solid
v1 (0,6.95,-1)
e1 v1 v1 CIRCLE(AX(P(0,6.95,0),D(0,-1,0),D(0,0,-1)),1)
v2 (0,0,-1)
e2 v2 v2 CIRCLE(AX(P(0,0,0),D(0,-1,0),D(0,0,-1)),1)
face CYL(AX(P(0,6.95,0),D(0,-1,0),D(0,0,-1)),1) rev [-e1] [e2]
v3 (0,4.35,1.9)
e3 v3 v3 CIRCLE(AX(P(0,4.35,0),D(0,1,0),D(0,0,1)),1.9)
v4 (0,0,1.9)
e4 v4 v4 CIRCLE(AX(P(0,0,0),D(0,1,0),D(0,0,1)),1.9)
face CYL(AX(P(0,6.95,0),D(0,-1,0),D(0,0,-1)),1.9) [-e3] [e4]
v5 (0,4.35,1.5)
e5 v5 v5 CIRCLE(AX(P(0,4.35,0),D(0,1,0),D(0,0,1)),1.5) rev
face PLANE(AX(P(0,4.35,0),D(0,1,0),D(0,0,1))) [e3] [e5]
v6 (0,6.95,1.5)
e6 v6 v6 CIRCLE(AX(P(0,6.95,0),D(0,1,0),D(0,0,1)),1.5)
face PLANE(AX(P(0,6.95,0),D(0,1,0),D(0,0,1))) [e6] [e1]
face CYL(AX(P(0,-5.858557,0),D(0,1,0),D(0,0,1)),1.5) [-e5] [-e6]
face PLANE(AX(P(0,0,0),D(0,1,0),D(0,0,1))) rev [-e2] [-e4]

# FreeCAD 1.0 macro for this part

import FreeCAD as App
import Part
import Sketcher
from FreeCAD import Vector


def add_polygon(sketch, points):
    """Adds a closed chain of lines whose ends are joined by coincident constraints."""
    first, n = sketch.GeometryCount, len(points)
    for a, b in zip(points, points[1:] + points[:1]):
        sketch.addGeometry(Part.LineSegment(App.Vector(*a, 0), App.Vector(*b, 0)), False)
    for i in range(n):
        sketch.addConstraint(Sketcher.Constraint("Coincident", first + i, 2, first + (i + 1) % n, 1))

doc = App.newDocument("Part")
params = doc.addObject("Spreadsheet::Sheet", "Params")
for row, (alias, value) in enumerate([
    ("sketch1_diameter", "3.8 mm"),
    ("pad1_length", "6.95 mm"),
    ("sketch2_diameter", "3 mm"),
    ("pocket1_length", "2.6 mm"),
    ("sketch3_diameter", "2 mm"),
], start=1):
    params.set(f"A{row}", alias)
    params.set(f"B{row}", "=" + value)
    params.setAlias(f"B{row}", alias)

body = doc.addObject("PartDesign::Body", "Body")

# Sketch on XZ plane
sketch1 = doc.addObject("Sketcher::SketchObject", "Sketch")
body.addObject(sketch1)
sketch1.AttachmentSupport = (doc.XZ_Plane, [""])
sketch1.MapMode = "FlatFace"
sketch1.addGeometry(Part.Circle(Vector(0, 0, 0), Vector(0, 0, 1), 1.9), False)
sketch1.addConstraint(Sketcher.Constraint("Coincident", 0, 3, -1, 1))
sketch1.addConstraint(Sketcher.Constraint("Diameter", 0, 3.8))
sketch1.setExpression("Constraints[1]", "Params.sketch1_diameter")
pad1 = doc.addObject("PartDesign::Pad", "Pad")
body.addObject(pad1)
pad1.Profile = sketch1
pad1.setExpression("Length", "Params.pad1_length")
pad1.Reversed = True

# Sketch on XZ plane
sketch2 = doc.addObject("Sketcher::SketchObject", "Sketch001")
body.addObject(sketch2)
sketch2.AttachmentSupport = (doc.XZ_Plane, [""])
sketch2.MapMode = "FlatFace"
sketch2.AttachmentOffset = App.Placement(Vector(0, 0, -6.95), App.Rotation())
add_polygon(sketch2, [(-3.8, -3.8), (-3.8, 3.8), (3.8, 3.8), (3.8, -3.8)])  # lines 0-3
sketch2.addGeometry(Part.Circle(Vector(0, 0, 0), Vector(0, 0, 1), 1.5), False)  # 4
sketch2.addConstraint(Sketcher.Constraint("Vertical", 0))
sketch2.addConstraint(Sketcher.Constraint("Horizontal", 1))
sketch2.addConstraint(Sketcher.Constraint("Vertical", 2))
sketch2.addConstraint(Sketcher.Constraint("Horizontal", 3))
sketch2.addConstraint(Sketcher.Constraint("Coincident", 4, 3, -1, 1))
sketch2.addConstraint(Sketcher.Constraint("Symmetric", 0, 2, 2, 2, -1, 1))
sketch2.addConstraint(Sketcher.Constraint("Equal", 3, 0))
sketch2.addConstraint(Sketcher.Constraint("Diameter", 4, 3.0))
sketch2.addConstraint(Sketcher.Constraint("DistanceX", 1, 1, 1, 2, 7.558))
sketch2.setExpression("Constraints[11]", "Params.sketch2_diameter")
pocket1 = doc.addObject("PartDesign::Pocket", "Pocket")
body.addObject(pocket1)
pocket1.Profile = sketch2
pocket1.setExpression("Length", "Params.pocket1_length")
pocket1.Reversed = True

# Sketch on XZ plane
sketch3 = doc.addObject("Sketcher::SketchObject", "Sketch002")
body.addObject(sketch3)
sketch3.AttachmentSupport = (doc.XZ_Plane, [""])
sketch3.MapMode = "FlatFace"
sketch3.addGeometry(Part.Circle(Vector(0, 0, 0), Vector(0, 0, 1), 1), False)
sketch3.addConstraint(Sketcher.Constraint("Coincident", 0, 3, -1, 1))
sketch3.addConstraint(Sketcher.Constraint("Diameter", 0, 2.0))
sketch3.setExpression("Constraints[1]", "Params.sketch3_diameter")
pocket2 = doc.addObject("PartDesign::Pocket", "Pocket001")
body.addObject(pocket2)
pocket2.Profile = sketch3
pocket2.Type = "ThroughAll"

doc.recompute()
